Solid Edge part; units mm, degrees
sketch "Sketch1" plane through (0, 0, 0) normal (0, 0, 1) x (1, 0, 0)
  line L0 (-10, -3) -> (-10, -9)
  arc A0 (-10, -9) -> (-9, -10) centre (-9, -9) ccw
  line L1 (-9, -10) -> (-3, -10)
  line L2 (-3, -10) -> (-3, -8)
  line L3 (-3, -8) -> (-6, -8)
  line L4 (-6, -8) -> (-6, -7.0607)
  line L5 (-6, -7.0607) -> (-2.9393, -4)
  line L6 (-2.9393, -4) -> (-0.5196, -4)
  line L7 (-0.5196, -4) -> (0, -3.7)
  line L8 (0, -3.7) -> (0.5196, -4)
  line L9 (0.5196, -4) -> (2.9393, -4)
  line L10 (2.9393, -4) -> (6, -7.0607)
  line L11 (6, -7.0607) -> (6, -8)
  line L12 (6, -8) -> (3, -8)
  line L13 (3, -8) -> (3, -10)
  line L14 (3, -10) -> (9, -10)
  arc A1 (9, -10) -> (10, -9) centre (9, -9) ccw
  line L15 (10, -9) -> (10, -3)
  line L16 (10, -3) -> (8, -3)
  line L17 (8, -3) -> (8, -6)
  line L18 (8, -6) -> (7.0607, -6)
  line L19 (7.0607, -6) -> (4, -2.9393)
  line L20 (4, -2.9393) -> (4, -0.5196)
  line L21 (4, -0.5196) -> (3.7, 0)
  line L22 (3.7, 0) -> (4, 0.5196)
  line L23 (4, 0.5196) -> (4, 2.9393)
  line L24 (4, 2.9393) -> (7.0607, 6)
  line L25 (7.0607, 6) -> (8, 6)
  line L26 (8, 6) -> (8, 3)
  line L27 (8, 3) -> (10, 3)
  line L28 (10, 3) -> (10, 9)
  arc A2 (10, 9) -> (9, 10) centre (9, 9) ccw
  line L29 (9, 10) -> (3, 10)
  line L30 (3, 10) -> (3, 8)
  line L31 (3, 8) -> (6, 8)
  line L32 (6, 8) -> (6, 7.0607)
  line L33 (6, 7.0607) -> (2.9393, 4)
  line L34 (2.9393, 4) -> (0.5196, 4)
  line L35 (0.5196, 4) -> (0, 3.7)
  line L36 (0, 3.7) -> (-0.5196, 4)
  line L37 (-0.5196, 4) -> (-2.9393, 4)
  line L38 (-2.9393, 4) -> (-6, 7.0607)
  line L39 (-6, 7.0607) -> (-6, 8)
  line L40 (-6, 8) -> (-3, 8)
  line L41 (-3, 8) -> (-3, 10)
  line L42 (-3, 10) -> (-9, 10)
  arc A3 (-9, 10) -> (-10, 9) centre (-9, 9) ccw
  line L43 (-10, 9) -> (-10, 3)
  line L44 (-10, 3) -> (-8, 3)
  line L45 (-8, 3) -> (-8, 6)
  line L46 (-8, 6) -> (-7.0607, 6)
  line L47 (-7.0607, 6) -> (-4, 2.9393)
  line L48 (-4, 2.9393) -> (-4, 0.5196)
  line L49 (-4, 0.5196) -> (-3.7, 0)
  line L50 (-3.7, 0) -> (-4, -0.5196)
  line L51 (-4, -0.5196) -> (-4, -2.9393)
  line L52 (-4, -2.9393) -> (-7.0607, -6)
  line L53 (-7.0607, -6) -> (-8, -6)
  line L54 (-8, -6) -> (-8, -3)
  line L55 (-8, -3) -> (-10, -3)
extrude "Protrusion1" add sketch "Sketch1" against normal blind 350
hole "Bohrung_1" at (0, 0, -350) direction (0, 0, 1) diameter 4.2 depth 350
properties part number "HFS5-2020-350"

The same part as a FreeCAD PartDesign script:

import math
import FreeCAD as App
import Part
import Sketcher
from FreeCAD import Vector
Q = App.Units.Quantity

doc = App.newDocument("Part")
body = doc.addObject("PartDesign::Body", "Body")

sketch1 = body.newObject("Sketcher::SketchObject", "Sketch")
sketch1.AttachmentSupport = (doc.getObject("XY_Plane"), [""])
sketch1.MapMode = "FlatFace"
sketch1.addGeometry([
    Part.LineSegment(Vector(-8, -3, 0), Vector(-10, -3, 0)),
    Part.LineSegment(Vector(-10, -3, 0), Vector(-10, -9, 0)),
    Part.ArcOfCircle(Part.Circle(Vector(-9, -9, 0), Vector(0, 0, 1), 1), math.radians(180), math.radians(270)),
    Part.LineSegment(Vector(-9, -10, 0), Vector(-3, -10, 0)),
    Part.LineSegment(Vector(-3, -10, 0), Vector(-3, -8, 0)),
    Part.LineSegment(Vector(-3, -8, 0), Vector(-6, -8, 0)),
    Part.LineSegment(Vector(-6, -8, 0), Vector(-6, -7.1, 0)),
    Part.LineSegment(Vector(-6, -7.1, 0), Vector(-2.9, -4, 0)),
    Part.LineSegment(Vector(-2.9, -4, 0), Vector(-0.5, -4, 0)),
    Part.LineSegment(Vector(-0.5, -4, 0), Vector(0, -3.7, 0)),
    Part.LineSegment(Vector(0, -3.7, 0), Vector(0.5, -4, 0)),
    Part.LineSegment(Vector(0.5, -4, 0), Vector(2.9, -4, 0)),
    Part.LineSegment(Vector(2.9, -4, 0), Vector(6, -7.1, 0)),
    Part.LineSegment(Vector(6, -7.1, 0), Vector(6, -8, 0)),
    Part.LineSegment(Vector(6, -8, 0), Vector(3, -8, 0)),
    Part.LineSegment(Vector(3, -8, 0), Vector(3, -10, 0)),
    Part.LineSegment(Vector(3, -10, 0), Vector(9, -10, 0)),
    Part.ArcOfCircle(Part.Circle(Vector(9, -9, 0), Vector(0, 0, 1), 1), math.radians(-90), math.radians(0)),
    Part.LineSegment(Vector(10, -9, 0), Vector(10, -3, 0)),
    Part.LineSegment(Vector(10, -3, 0), Vector(8, -3, 0)),
    Part.LineSegment(Vector(8, -3, 0), Vector(8, -6, 0)),
    Part.LineSegment(Vector(8, -6, 0), Vector(7.1, -6, 0)),
    Part.LineSegment(Vector(7.1, -6, 0), Vector(4, -2.9, 0)),
    Part.LineSegment(Vector(4, -2.9, 0), Vector(4, -0.5, 0)),
    Part.LineSegment(Vector(4, -0.5, 0), Vector(3.7, 0, 0)),
    Part.LineSegment(Vector(3.7, 0, 0), Vector(4, 0.5, 0)),
    Part.LineSegment(Vector(4, 0.5, 0), Vector(4, 2.9, 0)),
    Part.LineSegment(Vector(4, 2.9, 0), Vector(7.1, 6, 0)),
    Part.LineSegment(Vector(7.1, 6, 0), Vector(8, 6, 0)),
    Part.LineSegment(Vector(8, 6, 0), Vector(8, 3, 0)),
    Part.LineSegment(Vector(8, 3, 0), Vector(10, 3, 0)),
    Part.LineSegment(Vector(10, 3, 0), Vector(10, 9, 0)),
    Part.ArcOfCircle(Part.Circle(Vector(9, 9, 0), Vector(0, 0, 1), 1), math.radians(0), math.radians(90)),
    Part.LineSegment(Vector(9, 10, 0), Vector(3, 10, 0)),
    Part.LineSegment(Vector(3, 10, 0), Vector(3, 8, 0)),
    Part.LineSegment(Vector(3, 8, 0), Vector(6, 8, 0)),
    Part.LineSegment(Vector(6, 8, 0), Vector(6, 7.1, 0)),
    Part.LineSegment(Vector(6, 7.1, 0), Vector(2.9, 4, 0)),
    Part.LineSegment(Vector(2.9, 4, 0), Vector(0.5, 4, 0)),
    Part.LineSegment(Vector(0.5, 4, 0), Vector(0, 3.7, 0)),
    Part.LineSegment(Vector(0, 3.7, 0), Vector(-0.5, 4, 0)),
    Part.LineSegment(Vector(-0.5, 4, 0), Vector(-2.9, 4, 0)),
    Part.LineSegment(Vector(-2.9, 4, 0), Vector(-6, 7.1, 0)),
    Part.LineSegment(Vector(-6, 7.1, 0), Vector(-6, 8, 0)),
    Part.LineSegment(Vector(-6, 8, 0), Vector(-3, 8, 0)),
    Part.LineSegment(Vector(-3, 8, 0), Vector(-3, 10, 0)),
    Part.LineSegment(Vector(-3, 10, 0), Vector(-9, 10, 0)),
    Part.ArcOfCircle(Part.Circle(Vector(-9, 9, 0), Vector(0, 0, 1), 1), math.radians(90), math.radians(180)),
    Part.LineSegment(Vector(-10, 9, 0), Vector(-10, 3, 0)),
    Part.LineSegment(Vector(-10, 3, 0), Vector(-8, 3, 0)),
    Part.LineSegment(Vector(-8, 3, 0), Vector(-8, 6, 0)),
    Part.LineSegment(Vector(-8, 6, 0), Vector(-7.1, 6, 0)),
    Part.LineSegment(Vector(-7.1, 6, 0), Vector(-4, 2.9, 0)),
    Part.LineSegment(Vector(-4, 2.9, 0), Vector(-4, 0.5, 0)),
    Part.LineSegment(Vector(-4, 0.5, 0), Vector(-3.7, 0, 0)),
    Part.LineSegment(Vector(-3.7, 0, 0), Vector(-4, -0.5, 0)),
    Part.LineSegment(Vector(-4, -0.5, 0), Vector(-4, -2.9, 0)),
    Part.LineSegment(Vector(-4, -2.9, 0), Vector(-7.1, -6, 0)),
    Part.LineSegment(Vector(-7.1, -6, 0), Vector(-8, -6, 0)),
    Part.LineSegment(Vector(-8, -6, 0), Vector(-8, -3, 0)),
], False)
sketch1.addConstraint([
    Sketcher.Constraint("Coincident", 0, 2, 1, 1),
    Sketcher.Constraint("Tangent", 1, 2, 2, 1),
    Sketcher.Constraint("Tangent", 2, 2, 3, 1),
    Sketcher.Constraint("Coincident", 3, 2, 4, 1),
    Sketcher.Constraint("Coincident", 4, 2, 5, 1),
    Sketcher.Constraint("Coincident", 5, 2, 6, 1),
    Sketcher.Constraint("Coincident", 6, 2, 7, 1),
    Sketcher.Constraint("Coincident", 7, 2, 8, 1),
    Sketcher.Constraint("Coincident", 8, 2, 9, 1),
    Sketcher.Constraint("Coincident", 9, 2, 10, 1),
    Sketcher.Constraint("Coincident", 10, 2, 11, 1),
    Sketcher.Constraint("Coincident", 11, 2, 12, 1),
    Sketcher.Constraint("Coincident", 12, 2, 13, 1),
    Sketcher.Constraint("Coincident", 13, 2, 14, 1),
    Sketcher.Constraint("Coincident", 14, 2, 15, 1),
    Sketcher.Constraint("Coincident", 15, 2, 16, 1),
    Sketcher.Constraint("Tangent", 16, 2, 17, 1),
    Sketcher.Constraint("Tangent", 17, 2, 18, 1),
    Sketcher.Constraint("Coincident", 18, 2, 19, 1),
    Sketcher.Constraint("Coincident", 19, 2, 20, 1),
    Sketcher.Constraint("Coincident", 20, 2, 21, 1),
    Sketcher.Constraint("Coincident", 21, 2, 22, 1),
    Sketcher.Constraint("Coincident", 22, 2, 23, 1),
    Sketcher.Constraint("Coincident", 23, 2, 24, 1),
    Sketcher.Constraint("Coincident", 24, 2, 25, 1),
    Sketcher.Constraint("Coincident", 25, 2, 26, 1),
    Sketcher.Constraint("Coincident", 26, 2, 27, 1),
    Sketcher.Constraint("Coincident", 27, 2, 28, 1),
    Sketcher.Constraint("Coincident", 28, 2, 29, 1),
    Sketcher.Constraint("Coincident", 29, 2, 30, 1),
    Sketcher.Constraint("Coincident", 30, 2, 31, 1),
    Sketcher.Constraint("Tangent", 31, 2, 32, 1),
    Sketcher.Constraint("Tangent", 32, 2, 33, 1),
    Sketcher.Constraint("Coincident", 33, 2, 34, 1),
    Sketcher.Constraint("Coincident", 34, 2, 35, 1),
    Sketcher.Constraint("Coincident", 35, 2, 36, 1),
    Sketcher.Constraint("Coincident", 36, 2, 37, 1),
    Sketcher.Constraint("Coincident", 37, 2, 38, 1),
    Sketcher.Constraint("Coincident", 38, 2, 39, 1),
    Sketcher.Constraint("Coincident", 39, 2, 40, 1),
    Sketcher.Constraint("Coincident", 40, 2, 41, 1),
    Sketcher.Constraint("Coincident", 41, 2, 42, 1),
    Sketcher.Constraint("Coincident", 42, 2, 43, 1),
    Sketcher.Constraint("Coincident", 43, 2, 44, 1),
    Sketcher.Constraint("Coincident", 44, 2, 45, 1),
    Sketcher.Constraint("Coincident", 45, 2, 46, 1),
    Sketcher.Constraint("Tangent", 46, 2, 47, 1),
    Sketcher.Constraint("Tangent", 47, 2, 48, 1),
    Sketcher.Constraint("Coincident", 48, 2, 49, 1),
    Sketcher.Constraint("Coincident", 49, 2, 50, 1),
    Sketcher.Constraint("Coincident", 50, 2, 51, 1),
    Sketcher.Constraint("Coincident", 51, 2, 52, 1),
    Sketcher.Constraint("Coincident", 52, 2, 53, 1),
    Sketcher.Constraint("Coincident", 53, 2, 54, 1),
    Sketcher.Constraint("Coincident", 54, 2, 55, 1),
    Sketcher.Constraint("Coincident", 55, 2, 56, 1),
    Sketcher.Constraint("Coincident", 56, 2, 57, 1),
    Sketcher.Constraint("Coincident", 57, 2, 58, 1),
    Sketcher.Constraint("Coincident", 58, 2, 59, 1),
    Sketcher.Constraint("Coincident", 59, 2, 0, 1),
    Sketcher.Constraint("Horizontal", 0),
    Sketcher.Constraint("Vertical", 1),
    Sketcher.Constraint("Horizontal", 3),
    Sketcher.Constraint("Vertical", 4),
    Sketcher.Constraint("Horizontal", 5),
    Sketcher.Constraint("Vertical", 6),
    Sketcher.Constraint("Horizontal", 8),
    Sketcher.Constraint("Horizontal", 11),
    Sketcher.Constraint("Vertical", 13),
    Sketcher.Constraint("Horizontal", 14),
    Sketcher.Constraint("Vertical", 15),
    Sketcher.Constraint("Horizontal", 16),
    Sketcher.Constraint("Vertical", 18),
    Sketcher.Constraint("Horizontal", 19),
    Sketcher.Constraint("Vertical", 20),
    Sketcher.Constraint("Horizontal", 21),
    Sketcher.Constraint("Vertical", 23),
    Sketcher.Constraint("Vertical", 26),
    Sketcher.Constraint("Horizontal", 28),
    Sketcher.Constraint("Vertical", 29),
    Sketcher.Constraint("Horizontal", 30),
    Sketcher.Constraint("Vertical", 31),
    Sketcher.Constraint("Horizontal", 33),
    Sketcher.Constraint("Vertical", 34),
    Sketcher.Constraint("Horizontal", 35),
    Sketcher.Constraint("Vertical", 36),
    Sketcher.Constraint("Horizontal", 38),
    Sketcher.Constraint("Horizontal", 41),
    Sketcher.Constraint("Vertical", 43),
    Sketcher.Constraint("Horizontal", 44),
    Sketcher.Constraint("Vertical", 45),
    Sketcher.Constraint("Horizontal", 46),
    Sketcher.Constraint("Vertical", 48),
    Sketcher.Constraint("Horizontal", 49),
    Sketcher.Constraint("Vertical", 50),
    Sketcher.Constraint("Horizontal", 51),
    Sketcher.Constraint("Vertical", 53),
    Sketcher.Constraint("Vertical", 56),
    Sketcher.Constraint("Horizontal", 58),
    Sketcher.Constraint("Vertical", 59),
    Sketcher.Constraint("Equal", 2, 17),
    Sketcher.Constraint("Equal", 17, 32),
    Sketcher.Constraint("Equal", 32, 47),
    Sketcher.Constraint("Symmetric", 2, 3, 32, 3, -1, 1),
    Sketcher.Constraint("Symmetric", 17, 3, 47, 3, -1, 1),
    Sketcher.Constraint("Symmetric", 4, 2, 34, 2, -1, 1),
    Sketcher.Constraint("Symmetric", 6, 2, 36, 2, -1, 1),
    Sketcher.Constraint("Symmetric", 7, 2, 37, 2, -1, 1),
    Sketcher.Constraint("Symmetric", 9, 2, 39, 2, -1, 1),
    Sketcher.Constraint("Symmetric", 10, 2, 40, 2, -1, 1),
    Sketcher.Constraint("Symmetric", 12, 2, 42, 2, -1, 1),
    Sketcher.Constraint("Symmetric", 14, 2, 44, 2, -1, 1),
    Sketcher.Constraint("Symmetric", 19, 2, 49, 2, -1, 1),
    Sketcher.Constraint("Symmetric", 21, 2, 51, 2, -1, 1),
    Sketcher.Constraint("Symmetric", 22, 2, 52, 2, -1, 1),
    Sketcher.Constraint("Symmetric", 24, 2, 54, 2, -1, 1),
    Sketcher.Constraint("Symmetric", 25, 2, 55, 2, -1, 1),
    Sketcher.Constraint("Symmetric", 27, 2, 57, 2, -1, 1),
    Sketcher.Constraint("Symmetric", 29, 2, 59, 2, -1, 1),
    Sketcher.Constraint("Symmetric", 2, 3, 17, 3, -2),
    Sketcher.Constraint("Symmetric", 8, 2, 10, 2, -2),
    Sketcher.Constraint("Symmetric", 6, 2, 12, 2, -2),
    Sketcher.Constraint("Symmetric", 4, 2, 14, 2, -2),
    Sketcher.Constraint("Symmetric", 29, 2, 49, 2, -2),
    Sketcher.Constraint("Symmetric", 27, 2, 51, 2, -2),
    Sketcher.Constraint("Symmetric", 26, 2, 52, 2, -2),
    Sketcher.Constraint("PointOnObject", 9, 2, -2),
    Sketcher.Constraint("PointOnObject", 24, 2, -1),
    Sketcher.Constraint("Perpendicular", 7, 12),
    Sketcher.Constraint("Parallel", 12, 22),
    Sketcher.Constraint("Perpendicular", 9, 24),
    Sketcher.Constraint("Perpendicular", 10, 25),
    Sketcher.Constraint("Perpendicular", 22, 27),
    Sketcher.Constraint("Perpendicular", 24, 39),
    Sketcher.Constraint("Perpendicular", 37, 42),
    Sketcher.Constraint("Perpendicular", 39, 54),
    Sketcher.Constraint("Perpendicular", 52, 57),
    Sketcher.Constraint("Equal", 46, 1),
    Sketcher.Constraint("Equal", 49, 4),
    Sketcher.Constraint("Equal", 58, 6),
    Sketcher.Constraint("Equal", 44, 20),
    Sketcher.Constraint("Equal", 41, 23),
    Sketcher.Constraint("Equal", 12, 22),
    Sketcher.Constraint("Equal", 10, 24),
    Sketcher.Constraint("Radius", 2, 1.0),
    Sketcher.Constraint("DistanceX", 0, 2, 0, 1, 2.0),
    Sketcher.Constraint("DistanceX", 3, 1, 3, 2, 6.0),
    Sketcher.Constraint("DistanceX", 5, 2, 5, 1, 3.0),
    Sketcher.Constraint("Angle", 9, Q("30.0007 deg")),
    Sketcher.Constraint("DistanceX", 2, 3, -1, 1, 9.0),
    Sketcher.Constraint("DistanceY", 7, 2, -1, 1, 4.0),
    Sketcher.Constraint("Distance", 9, 0.6),
    Sketcher.Constraint("DistanceX", 8, 1, 8, 2, 2.4197),
])
pad1 = body.newObject("PartDesign::Pad", "Pad")
pad1.Profile = sketch1
pad1.Length = 350
pad1.Reversed = True

sketch2 = body.newObject("Sketcher::SketchObject", "Sketch001")
sketch2.AttachmentSupport = (doc.getObject("XY_Plane"), [""])
sketch2.MapMode = "FlatFace"
sketch2.AttachmentOffset = App.Placement(Vector(0, 0, -350), App.Rotation())
sketch2.addGeometry(Part.Circle(Vector(0, 0, 0), Vector(0, 0, 1), 2.1), False)
sketch2.addConstraint([
    Sketcher.Constraint("Coincident", 0, 3, -1, 1),
    Sketcher.Constraint("Diameter", 0, 4.2),
])
doc.recompute()
hole = body.newObject("PartDesign::Hole", "Hole")
hole.Profile = sketch2
hole.ThreadType = "None"
hole.Diameter = 4.2
hole.DepthType = "Dimension"
hole.Depth = 350
hole.DrillPoint = "Flat"
hole.Reversed = True

doc.recompute()
